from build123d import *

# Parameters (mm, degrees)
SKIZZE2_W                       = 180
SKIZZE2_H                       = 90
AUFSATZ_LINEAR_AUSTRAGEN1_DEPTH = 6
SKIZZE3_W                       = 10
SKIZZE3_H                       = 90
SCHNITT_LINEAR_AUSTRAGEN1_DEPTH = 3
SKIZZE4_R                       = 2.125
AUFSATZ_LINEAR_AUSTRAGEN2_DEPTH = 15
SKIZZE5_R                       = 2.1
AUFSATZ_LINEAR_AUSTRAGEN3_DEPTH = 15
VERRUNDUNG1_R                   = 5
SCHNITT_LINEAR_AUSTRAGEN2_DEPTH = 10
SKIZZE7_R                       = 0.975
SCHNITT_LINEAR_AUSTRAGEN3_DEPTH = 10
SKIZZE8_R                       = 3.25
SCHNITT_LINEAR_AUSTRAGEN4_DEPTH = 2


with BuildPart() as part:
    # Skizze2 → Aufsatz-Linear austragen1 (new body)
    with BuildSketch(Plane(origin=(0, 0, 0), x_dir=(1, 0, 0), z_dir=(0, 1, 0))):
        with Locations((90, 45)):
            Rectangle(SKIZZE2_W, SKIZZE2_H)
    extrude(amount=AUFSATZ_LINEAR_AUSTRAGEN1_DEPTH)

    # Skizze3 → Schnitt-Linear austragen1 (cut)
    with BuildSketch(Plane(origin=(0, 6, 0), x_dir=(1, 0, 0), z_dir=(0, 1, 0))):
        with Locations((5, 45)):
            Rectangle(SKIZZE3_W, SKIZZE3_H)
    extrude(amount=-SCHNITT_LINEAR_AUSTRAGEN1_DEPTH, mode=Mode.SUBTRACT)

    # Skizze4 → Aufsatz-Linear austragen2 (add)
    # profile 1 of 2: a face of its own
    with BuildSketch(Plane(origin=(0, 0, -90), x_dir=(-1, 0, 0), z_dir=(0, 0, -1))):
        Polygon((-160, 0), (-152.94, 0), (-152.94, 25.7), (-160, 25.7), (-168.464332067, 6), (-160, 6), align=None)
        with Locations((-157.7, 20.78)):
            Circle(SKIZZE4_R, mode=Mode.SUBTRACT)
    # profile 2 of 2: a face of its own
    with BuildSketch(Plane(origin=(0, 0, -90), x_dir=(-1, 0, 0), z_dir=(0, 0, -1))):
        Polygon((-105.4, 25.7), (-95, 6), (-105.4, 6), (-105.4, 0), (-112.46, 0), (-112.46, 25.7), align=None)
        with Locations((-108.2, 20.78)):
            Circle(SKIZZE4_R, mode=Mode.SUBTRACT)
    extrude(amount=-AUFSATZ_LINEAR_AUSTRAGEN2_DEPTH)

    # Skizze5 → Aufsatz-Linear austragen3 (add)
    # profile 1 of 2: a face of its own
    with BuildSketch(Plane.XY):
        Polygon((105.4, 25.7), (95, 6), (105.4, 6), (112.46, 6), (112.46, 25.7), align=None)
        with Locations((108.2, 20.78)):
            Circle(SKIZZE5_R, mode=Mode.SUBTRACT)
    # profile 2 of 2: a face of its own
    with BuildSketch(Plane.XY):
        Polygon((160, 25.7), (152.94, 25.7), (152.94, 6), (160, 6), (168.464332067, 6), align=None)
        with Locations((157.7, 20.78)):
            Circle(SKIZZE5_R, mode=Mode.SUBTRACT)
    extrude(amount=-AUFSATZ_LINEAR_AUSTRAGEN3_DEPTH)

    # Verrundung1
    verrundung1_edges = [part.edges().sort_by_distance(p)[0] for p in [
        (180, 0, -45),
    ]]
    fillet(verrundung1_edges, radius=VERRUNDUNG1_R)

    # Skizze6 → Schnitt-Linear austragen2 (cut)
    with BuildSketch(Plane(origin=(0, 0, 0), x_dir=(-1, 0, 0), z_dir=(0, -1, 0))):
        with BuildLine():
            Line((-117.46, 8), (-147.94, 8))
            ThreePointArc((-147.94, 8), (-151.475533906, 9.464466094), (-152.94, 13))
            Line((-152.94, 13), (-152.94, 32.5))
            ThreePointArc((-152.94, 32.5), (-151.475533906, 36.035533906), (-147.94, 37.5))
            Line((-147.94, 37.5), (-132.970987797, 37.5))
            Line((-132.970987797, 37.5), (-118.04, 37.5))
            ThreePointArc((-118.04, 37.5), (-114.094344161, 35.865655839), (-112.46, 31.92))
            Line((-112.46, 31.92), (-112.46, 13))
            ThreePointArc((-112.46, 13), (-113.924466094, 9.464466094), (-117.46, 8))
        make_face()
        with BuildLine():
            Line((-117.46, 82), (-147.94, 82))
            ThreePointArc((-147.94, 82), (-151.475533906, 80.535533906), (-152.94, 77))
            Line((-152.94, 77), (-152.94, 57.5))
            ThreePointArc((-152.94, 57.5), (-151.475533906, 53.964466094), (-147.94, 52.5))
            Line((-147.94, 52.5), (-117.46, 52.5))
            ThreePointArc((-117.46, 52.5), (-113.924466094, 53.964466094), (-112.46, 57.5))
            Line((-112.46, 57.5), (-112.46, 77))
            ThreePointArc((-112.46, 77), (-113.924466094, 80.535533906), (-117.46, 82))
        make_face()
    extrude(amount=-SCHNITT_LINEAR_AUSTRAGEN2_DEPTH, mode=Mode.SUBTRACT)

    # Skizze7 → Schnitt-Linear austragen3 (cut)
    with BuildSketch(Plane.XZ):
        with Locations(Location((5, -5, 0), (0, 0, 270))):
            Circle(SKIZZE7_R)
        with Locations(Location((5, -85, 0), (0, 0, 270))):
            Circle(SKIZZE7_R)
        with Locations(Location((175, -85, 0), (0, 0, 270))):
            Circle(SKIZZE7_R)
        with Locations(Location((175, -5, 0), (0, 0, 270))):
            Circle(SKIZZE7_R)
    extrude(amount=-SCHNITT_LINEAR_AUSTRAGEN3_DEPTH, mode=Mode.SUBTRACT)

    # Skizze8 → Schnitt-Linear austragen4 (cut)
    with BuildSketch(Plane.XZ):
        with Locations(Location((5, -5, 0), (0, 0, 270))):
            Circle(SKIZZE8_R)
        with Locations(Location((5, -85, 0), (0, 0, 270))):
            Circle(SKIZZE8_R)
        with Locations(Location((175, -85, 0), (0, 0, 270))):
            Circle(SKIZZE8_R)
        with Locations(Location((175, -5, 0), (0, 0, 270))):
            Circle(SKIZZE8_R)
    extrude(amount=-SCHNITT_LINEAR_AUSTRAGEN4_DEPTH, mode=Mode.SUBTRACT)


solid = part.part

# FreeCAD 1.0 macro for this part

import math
import FreeCAD as App
import Part
import Sketcher

V = App.Vector


def edges_at(feature, points):
    """Names of the edges that pass closest to the given points."""
    edges = feature.Shape.Edges
    near = lambda p: min(range(len(edges)), key=lambda i: edges[i].distToShape(Part.Vertex(*p))[0])
    return sorted({f"Edge{near(p) + 1}" for p in points})

doc = App.newDocument("Part")
params = doc.addObject("Spreadsheet::Sheet", "Params")
for row, (alias, value) in enumerate([
    ("sketch1_width", "180 mm"),
    ("sketch1_height", "90 mm"),
    ("pad1_length", "6 mm"),
    ("sketch2_width", "10 mm"),
    ("sketch2_height", "90 mm"),
    ("pocket1_length", "3 mm"),
    ("sketch3_diameter", "4.25 mm"),
    ("sketch3_height", "6 mm"),
    ("sketch3_width", "10.4 mm"),
    ("sketch3_height2", "25.7 mm"),
    ("sketch3_width2", "7.06 mm"),
    ("pad2_length", "15 mm"),
    ("sketch4_diameter", "4.2 mm"),
    ("sketch4_height", "19.7 mm"),
    ("sketch4_width", "17.46 mm"),
    ("sketch4_width2", "7.06 mm"),
    ("pad3_length", "15 mm"),
    ("fillet_radius", "5 mm"),
    ("sketch5_radius", "5 mm"),
    ("sketch5_radius2", "5.58 mm"),
    ("sketch5_width", "29.9 mm"),
    ("sketch5_height", "19.5 mm"),
    ("pocket2_length", "10 mm"),
    ("sketch6_diameter", "1.95 mm"),
    ("pocket3_length", "10 mm"),
    ("sketch7_diameter", "6.5 mm"),
    ("pocket4_length", "2 mm"),
], start=1):
    params.set(f"A{row}", alias)
    params.set(f"B{row}", "=" + value)
    params.setAlias(f"B{row}", alias)

body = doc.addObject("PartDesign::Body", "Body")

sketch1 = doc.addObject("Sketcher::SketchObject", "Sketch")
body.addObject(sketch1)
sketch1.AttachmentSupport = (doc.XZ_Plane, [""])
sketch1.MapMode = "FlatFace"
sketch1.addGeometry(Part.LineSegment(V(0, -90, 0), V(0, 0, 0)), False)
sketch1.addGeometry(Part.LineSegment(V(0, 0, 0), V(180, 0, 0)), False)
sketch1.addGeometry(Part.LineSegment(V(180, 0, 0), V(180, -90, 0)), False)
sketch1.addGeometry(Part.LineSegment(V(180, -90, 0), V(0, -90, 0)), False)
sketch1.addConstraint(Sketcher.Constraint("Coincident", 0, 2, 1, 1))
sketch1.addConstraint(Sketcher.Constraint("Coincident", 1, 2, 2, 1))
sketch1.addConstraint(Sketcher.Constraint("Coincident", 2, 2, 3, 1))
sketch1.addConstraint(Sketcher.Constraint("Coincident", 3, 2, 0, 1))
sketch1.addConstraint(Sketcher.Constraint("Vertical", 0))
sketch1.addConstraint(Sketcher.Constraint("Horizontal", 1))
sketch1.addConstraint(Sketcher.Constraint("Vertical", 2))
sketch1.addConstraint(Sketcher.Constraint("Horizontal", 3))
sketch1.addConstraint(Sketcher.Constraint("Coincident", 0, 2, -1, 1))
sketch1.addConstraint(Sketcher.Constraint("DistanceX", 1, 1, 1, 2, 180.0))
sketch1.addConstraint(Sketcher.Constraint("DistanceY", 0, 1, 0, 2, 90.0))
sketch1.setExpression("Constraints[9]", "Params.sketch1_width")
sketch1.setExpression("Constraints[10]", "Params.sketch1_height")
pad1 = doc.addObject("PartDesign::Pad", "Pad")
body.addObject(pad1)
pad1.Profile = sketch1
pad1.setExpression("Length", "Params.pad1_length")
pad1.Reversed = True

sketch2 = doc.addObject("Sketcher::SketchObject", "Sketch001")
body.addObject(sketch2)
sketch2.AttachmentSupport = (doc.XZ_Plane, [""])
sketch2.MapMode = "FlatFace"
sketch2.AttachmentOffset = App.Placement(V(0, 0, -6), App.Rotation())
sketch2.addGeometry(Part.LineSegment(V(0, -90, 0), V(0, 0, 0)), False)
sketch2.addGeometry(Part.LineSegment(V(0, 0, 0), V(10, 0, 0)), False)
sketch2.addGeometry(Part.LineSegment(V(10, 0, 0), V(10, -90, 0)), False)
sketch2.addGeometry(Part.LineSegment(V(10, -90, 0), V(0, -90, 0)), False)
sketch2.addConstraint(Sketcher.Constraint("Coincident", 0, 2, 1, 1))
sketch2.addConstraint(Sketcher.Constraint("Coincident", 1, 2, 2, 1))
sketch2.addConstraint(Sketcher.Constraint("Coincident", 2, 2, 3, 1))
sketch2.addConstraint(Sketcher.Constraint("Coincident", 3, 2, 0, 1))
sketch2.addConstraint(Sketcher.Constraint("Vertical", 0))
sketch2.addConstraint(Sketcher.Constraint("Horizontal", 1))
sketch2.addConstraint(Sketcher.Constraint("Vertical", 2))
sketch2.addConstraint(Sketcher.Constraint("Horizontal", 3))
sketch2.addConstraint(Sketcher.Constraint("Coincident", 0, 2, -1, 1))
sketch2.addConstraint(Sketcher.Constraint("DistanceX", 1, 1, 1, 2, 10.0))
sketch2.addConstraint(Sketcher.Constraint("DistanceY", 0, 1, 0, 2, 90.0))
sketch2.setExpression("Constraints[9]", "Params.sketch2_width")
sketch2.setExpression("Constraints[10]", "Params.sketch2_height")
pocket1 = doc.addObject("PartDesign::Pocket", "Pocket")
body.addObject(pocket1)
pocket1.Profile = sketch2
pocket1.setExpression("Length", "Params.pocket1_length")
pocket1.Reversed = True

sketch3 = doc.addObject("Sketcher::SketchObject", "Sketch002")
body.addObject(sketch3)
sketch3.AttachmentSupport = (doc.XY_Plane, [""])
sketch3.MapMode = "FlatFace"
sketch3.AttachmentOffset = App.Placement(V(0, 0, -90), App.Rotation())
sketch3.addGeometry(Part.LineSegment(V(160, 0, 0), V(152.94, 0, 0)), False)
sketch3.addGeometry(Part.LineSegment(V(152.94, 0, 0), V(152.94, 25.7, 0)), False)
sketch3.addGeometry(Part.LineSegment(V(152.94, 25.7, 0), V(160, 25.7, 0)), False)
sketch3.addGeometry(Part.LineSegment(V(160, 25.7, 0), V(168.464332, 6, 0)), False)
sketch3.addGeometry(Part.LineSegment(V(168.464332, 6, 0), V(160, 6, 0)), False)
sketch3.addGeometry(Part.LineSegment(V(160, 6, 0), V(160, 0, 0)), False)
sketch3.addGeometry(Part.Circle(V(157.7, 20.78, 0), V(0, 0, 1), 2.125), False)
sketch3.addGeometry(Part.LineSegment(V(95, 6, 0), V(105.4, 25.7, 0)), False)
sketch3.addGeometry(Part.LineSegment(V(105.4, 25.7, 0), V(112.46, 25.7, 0)), False)
sketch3.addGeometry(Part.LineSegment(V(112.46, 25.7, 0), V(112.46, 0, 0)), False)
sketch3.addGeometry(Part.LineSegment(V(112.46, 0, 0), V(105.4, 0, 0)), False)
sketch3.addGeometry(Part.LineSegment(V(105.4, 0, 0), V(105.4, 6, 0)), False)
sketch3.addGeometry(Part.LineSegment(V(105.4, 6, 0), V(95, 6, 0)), False)
sketch3.addGeometry(Part.Circle(V(108.2, 20.78, 0), V(0, 0, 1), 2.125), False)
sketch3.addConstraint(Sketcher.Constraint("Coincident", 0, 2, 1, 1))
sketch3.addConstraint(Sketcher.Constraint("Coincident", 1, 2, 2, 1))
sketch3.addConstraint(Sketcher.Constraint("Coincident", 2, 2, 3, 1))
sketch3.addConstraint(Sketcher.Constraint("Coincident", 3, 2, 4, 1))
sketch3.addConstraint(Sketcher.Constraint("Coincident", 4, 2, 5, 1))
sketch3.addConstraint(Sketcher.Constraint("Coincident", 5, 2, 0, 1))
sketch3.addConstraint(Sketcher.Constraint("Coincident", 7, 2, 8, 1))
sketch3.addConstraint(Sketcher.Constraint("Coincident", 8, 2, 9, 1))
sketch3.addConstraint(Sketcher.Constraint("Coincident", 9, 2, 10, 1))
sketch3.addConstraint(Sketcher.Constraint("Coincident", 10, 2, 11, 1))
sketch3.addConstraint(Sketcher.Constraint("Coincident", 11, 2, 12, 1))
sketch3.addConstraint(Sketcher.Constraint("Coincident", 12, 2, 7, 1))
sketch3.addConstraint(Sketcher.Constraint("Horizontal", 0))
sketch3.addConstraint(Sketcher.Constraint("Vertical", 1))
sketch3.addConstraint(Sketcher.Constraint("Horizontal", 2))
sketch3.addConstraint(Sketcher.Constraint("Horizontal", 4))
sketch3.addConstraint(Sketcher.Constraint("Vertical", 5))
sketch3.addConstraint(Sketcher.Constraint("Horizontal", 8))
sketch3.addConstraint(Sketcher.Constraint("Vertical", 9))
sketch3.addConstraint(Sketcher.Constraint("Horizontal", 10))
sketch3.addConstraint(Sketcher.Constraint("Vertical", 11))
sketch3.addConstraint(Sketcher.Constraint("Horizontal", 12))
sketch3.addConstraint(Sketcher.Constraint("Equal", 6, 13))
sketch3.addConstraint(Sketcher.Constraint("PointOnObject", 0, 2, -1))
sketch3.addConstraint(Sketcher.Constraint("PointOnObject", 9, 2, -1))
sketch3.addConstraint(Sketcher.Constraint("Horizontal", 6, 3, 13, 3))
sketch3.addConstraint(Sketcher.Constraint("Horizontal", 2, 2, 7, 2))
sketch3.addConstraint(Sketcher.Constraint("Horizontal", 4, 2, 11, 2))
sketch3.addConstraint(Sketcher.Constraint("Vertical", 2, 2, 4, 2))
sketch3.addConstraint(Sketcher.Constraint("Vertical", 7, 2, 10, 2))
sketch3.addConstraint(Sketcher.Constraint("Equal", 2, 8))
sketch3.addConstraint(Sketcher.Constraint("Diameter", 6, 4.25))
sketch3.addConstraint(Sketcher.Constraint("DistanceY", 5, 2, 5, 1, 6.0))
sketch3.addConstraint(Sketcher.Constraint("DistanceX", 12, 2, 12, 1, 10.4))
sketch3.addConstraint(Sketcher.Constraint("DistanceY", 1, 1, 1, 2, 25.7))
sketch3.addConstraint(Sketcher.Constraint("DistanceX", -1, 1, 2, 2, 160.0))
sketch3.addConstraint(Sketcher.Constraint("DistanceX", -1, 1, 12, 2, 95.0))
sketch3.addConstraint(Sketcher.Constraint("DistanceX", 0, 2, 0, 1, 7.06))
sketch3.addConstraint(Sketcher.Constraint("DistanceX", -1, 1, 6, 3, 157.7))
sketch3.addConstraint(Sketcher.Constraint("DistanceX", -1, 1, 13, 3, 108.2))
sketch3.addConstraint(Sketcher.Constraint("DistanceY", -1, 1, 6, 3, 20.78))
sketch3.addConstraint(Sketcher.Constraint("Distance", 3, 21.44143))
sketch3.setExpression("Constraints[31]", "Params.sketch3_diameter")
sketch3.setExpression("Constraints[32]", "Params.sketch3_height")
sketch3.setExpression("Constraints[33]", "Params.sketch3_width")
sketch3.setExpression("Constraints[34]", "Params.sketch3_height2")
sketch3.setExpression("Constraints[37]", "Params.sketch3_width2")
pad2 = doc.addObject("PartDesign::Pad", "Pad001")
body.addObject(pad2)
pad2.Profile = sketch3
pad2.setExpression("Length", "Params.pad2_length")

sketch4 = doc.addObject("Sketcher::SketchObject", "Sketch003")
body.addObject(sketch4)
sketch4.AttachmentSupport = (doc.XY_Plane, [""])
sketch4.MapMode = "FlatFace"
sketch4.addGeometry(Part.LineSegment(V(105.4, 25.7, 0), V(95, 6, 0)), False)
sketch4.addGeometry(Part.LineSegment(V(95, 6, 0), V(112.46, 6, 0)), False)
sketch4.addGeometry(Part.LineSegment(V(112.46, 6, 0), V(112.46, 25.7, 0)), False)
sketch4.addGeometry(Part.LineSegment(V(112.46, 25.7, 0), V(105.4, 25.7, 0)), False)
sketch4.addGeometry(Part.Circle(V(108.2, 20.78, 0), V(0, 0, 1), 2.1), False)
sketch4.addGeometry(Part.LineSegment(V(160, 25.7, 0), V(152.94, 25.7, 0)), False)
sketch4.addGeometry(Part.LineSegment(V(152.94, 25.7, 0), V(152.94, 6, 0)), False)
sketch4.addGeometry(Part.LineSegment(V(152.94, 6, 0), V(168.464332, 6, 0)), False)
sketch4.addGeometry(Part.LineSegment(V(168.464332, 6, 0), V(160, 25.7, 0)), False)
sketch4.addGeometry(Part.Circle(V(157.7, 20.78, 0), V(0, 0, 1), 2.1), False)
sketch4.addConstraint(Sketcher.Constraint("Coincident", 0, 2, 1, 1))
sketch4.addConstraint(Sketcher.Constraint("Coincident", 1, 2, 2, 1))
sketch4.addConstraint(Sketcher.Constraint("Coincident", 2, 2, 3, 1))
sketch4.addConstraint(Sketcher.Constraint("Coincident", 3, 2, 0, 1))
sketch4.addConstraint(Sketcher.Constraint("Coincident", 5, 2, 6, 1))
sketch4.addConstraint(Sketcher.Constraint("Coincident", 6, 2, 7, 1))
sketch4.addConstraint(Sketcher.Constraint("Coincident", 7, 2, 8, 1))
sketch4.addConstraint(Sketcher.Constraint("Coincident", 8, 2, 5, 1))
sketch4.addConstraint(Sketcher.Constraint("Horizontal", 1))
sketch4.addConstraint(Sketcher.Constraint("Vertical", 2))
sketch4.addConstraint(Sketcher.Constraint("Horizontal", 3))
sketch4.addConstraint(Sketcher.Constraint("Horizontal", 5))
sketch4.addConstraint(Sketcher.Constraint("Vertical", 6))
sketch4.addConstraint(Sketcher.Constraint("Horizontal", 7))
sketch4.addConstraint(Sketcher.Constraint("Equal", 4, 9))
sketch4.addConstraint(Sketcher.Constraint("Horizontal", 4, 3, 9, 3))
sketch4.addConstraint(Sketcher.Constraint("Horizontal", 3, 2, 5, 2))
sketch4.addConstraint(Sketcher.Constraint("Horizontal", 1, 2, 6, 2))
sketch4.addConstraint(Sketcher.Constraint("Equal", 3, 5))
sketch4.addConstraint(Sketcher.Constraint("Diameter", 4, 4.2))
sketch4.addConstraint(Sketcher.Constraint("DistanceY", 2, 1, 2, 2, 19.7))
sketch4.addConstraint(Sketcher.Constraint("DistanceX", -1, 1, 0, 2, 95.0))
sketch4.addConstraint(Sketcher.Constraint("DistanceY", -1, 1, 0, 2, 6.0))
sketch4.addConstraint(Sketcher.Constraint("DistanceX", -1, 1, 8, 2, 160.0))
sketch4.addConstraint(Sketcher.Constraint("DistanceX", 1, 1, 1, 2, 17.46))
sketch4.addConstraint(Sketcher.Constraint("DistanceX", 3, 2, 3, 1, 7.06))
sketch4.addConstraint(Sketcher.Constraint("DistanceX", -1, 1, 4, 3, 108.2))
sketch4.addConstraint(Sketcher.Constraint("DistanceX", -1, 1, 9, 3, 157.7))
sketch4.addConstraint(Sketcher.Constraint("DistanceY", -1, 1, 4, 3, 20.78))
sketch4.addConstraint(Sketcher.Constraint("Distance", 8, 21.44143))
sketch4.setExpression("Constraints[19]", "Params.sketch4_diameter")
sketch4.setExpression("Constraints[20]", "Params.sketch4_height")
sketch4.setExpression("Constraints[24]", "Params.sketch4_width")
sketch4.setExpression("Constraints[25]", "Params.sketch4_width2")
pad3 = doc.addObject("PartDesign::Pad", "Pad002")
body.addObject(pad3)
pad3.Profile = sketch4
pad3.setExpression("Length", "Params.pad3_length")
pad3.Reversed = True
doc.recompute()

fillet = doc.addObject("PartDesign::Fillet", "Fillet")
body.addObject(fillet)
fillet.Base = (pad3, edges_at(pad3, [(180, 0, -45)]))
fillet.setExpression("Radius", "Params.fillet_radius")

sketch5 = doc.addObject("Sketcher::SketchObject", "Sketch004")
body.addObject(sketch5)
sketch5.AttachmentSupport = (doc.XZ_Plane, [""])
sketch5.MapMode = "FlatFace"
sketch5.addGeometry(Part.LineSegment(V(147.94, -8, 0), V(117.46, -8, 0)), False)
sketch5.addGeometry(Part.ArcOfCircle(Part.Circle(V(117.46, -13, 0), V(0, 0, 1), 5), math.radians(90), math.radians(180)), False)
sketch5.addGeometry(Part.LineSegment(V(112.46, -13, 0), V(112.46, -31.92, 0)), False)
sketch5.addGeometry(Part.ArcOfCircle(Part.Circle(V(118.04, -31.92, 0), V(0, 0, 1), 5.58), math.radians(180), math.radians(270)), False)
sketch5.addGeometry(Part.LineSegment(V(118.04, -37.5, 0), V(147.94, -37.5, 0)), False)
sketch5.addGeometry(Part.ArcOfCircle(Part.Circle(V(147.94, -32.5, 0), V(0, 0, 1), 5), math.radians(-90), math.radians(0)), False)
sketch5.addGeometry(Part.LineSegment(V(152.94, -32.5, 0), V(152.94, -13, 0)), False)
sketch5.addGeometry(Part.ArcOfCircle(Part.Circle(V(147.94, -13, 0), V(0, 0, 1), 5), math.radians(0), math.radians(90)), False)
sketch5.addGeometry(Part.LineSegment(V(117.46, -82, 0), V(147.94, -82, 0)), False)
sketch5.addGeometry(Part.ArcOfCircle(Part.Circle(V(147.94, -77, 0), V(0, 0, 1), 5), math.radians(-90), math.radians(0)), False)
sketch5.addGeometry(Part.LineSegment(V(152.94, -77, 0), V(152.94, -57.5, 0)), False)
sketch5.addGeometry(Part.ArcOfCircle(Part.Circle(V(147.94, -57.5, 0), V(0, 0, 1), 5), math.radians(0), math.radians(90)), False)
sketch5.addGeometry(Part.LineSegment(V(147.94, -52.5, 0), V(117.46, -52.5, 0)), False)
sketch5.addGeometry(Part.ArcOfCircle(Part.Circle(V(117.46, -57.5, 0), V(0, 0, 1), 5), math.radians(90), math.radians(180)), False)
sketch5.addGeometry(Part.LineSegment(V(112.46, -57.5, 0), V(112.46, -77, 0)), False)
sketch5.addGeometry(Part.ArcOfCircle(Part.Circle(V(117.46, -77, 0), V(0, 0, 1), 5), math.radians(180), math.radians(270)), False)
sketch5.addConstraint(Sketcher.Constraint("Tangent", 0, 2, 1, 1))
sketch5.addConstraint(Sketcher.Constraint("Tangent", 1, 2, 2, 1))
sketch5.addConstraint(Sketcher.Constraint("Tangent", 2, 2, 3, 1))
sketch5.addConstraint(Sketcher.Constraint("Tangent", 3, 2, 4, 1))
sketch5.addConstraint(Sketcher.Constraint("Tangent", 4, 2, 5, 1))
sketch5.addConstraint(Sketcher.Constraint("Tangent", 5, 2, 6, 1))
sketch5.addConstraint(Sketcher.Constraint("Tangent", 6, 2, 7, 1))
sketch5.addConstraint(Sketcher.Constraint("Tangent", 7, 2, 0, 1))
sketch5.addConstraint(Sketcher.Constraint("Tangent", 8, 2, 9, 1))
sketch5.addConstraint(Sketcher.Constraint("Tangent", 9, 2, 10, 1))
sketch5.addConstraint(Sketcher.Constraint("Tangent", 10, 2, 11, 1))
sketch5.addConstraint(Sketcher.Constraint("Tangent", 11, 2, 12, 1))
sketch5.addConstraint(Sketcher.Constraint("Tangent", 12, 2, 13, 1))
sketch5.addConstraint(Sketcher.Constraint("Tangent", 13, 2, 14, 1))
sketch5.addConstraint(Sketcher.Constraint("Tangent", 14, 2, 15, 1))
sketch5.addConstraint(Sketcher.Constraint("Tangent", 15, 2, 8, 1))
sketch5.addConstraint(Sketcher.Constraint("Horizontal", 0))
sketch5.addConstraint(Sketcher.Constraint("Vertical", 2))
sketch5.addConstraint(Sketcher.Constraint("Horizontal", 4))
sketch5.addConstraint(Sketcher.Constraint("Vertical", 6))
sketch5.addConstraint(Sketcher.Constraint("Horizontal", 8))
sketch5.addConstraint(Sketcher.Constraint("Vertical", 10))
sketch5.addConstraint(Sketcher.Constraint("Horizontal", 12))
sketch5.addConstraint(Sketcher.Constraint("Vertical", 14))
sketch5.addConstraint(Sketcher.Constraint("Equal", 1, 5))
sketch5.addConstraint(Sketcher.Constraint("Equal", 5, 7))
sketch5.addConstraint(Sketcher.Constraint("Equal", 7, 9))
sketch5.addConstraint(Sketcher.Constraint("Equal", 9, 11))
sketch5.addConstraint(Sketcher.Constraint("Equal", 11, 13))
sketch5.addConstraint(Sketcher.Constraint("Equal", 13, 15))
sketch5.addConstraint(Sketcher.Constraint("Vertical", 7, 3, 9, 3))
sketch5.addConstraint(Sketcher.Constraint("Vertical", 1, 3, 13, 3))
sketch5.addConstraint(Sketcher.Constraint("Equal", 6, 10))
sketch5.addConstraint(Sketcher.Constraint("Radius", 1, 5.0))
sketch5.addConstraint(Sketcher.Constraint("Radius", 3, 5.58))
sketch5.addConstraint(Sketcher.Constraint("DistanceX", 4, 1, 4, 2, 29.9))
sketch5.addConstraint(Sketcher.Constraint("DistanceY", 6, 1, 6, 2, 19.5))
sketch5.addConstraint(Sketcher.Constraint("DistanceY", 1, 3, -1, 1, 13.0))
sketch5.addConstraint(Sketcher.Constraint("DistanceY", 9, 3, -1, 1, 77.0))
sketch5.addConstraint(Sketcher.Constraint("DistanceX", -1, 1, 1, 3, 117.46))
sketch5.setExpression("Constraints[33]", "Params.sketch5_radius")
sketch5.setExpression("Constraints[34]", "Params.sketch5_radius2")
sketch5.setExpression("Constraints[35]", "Params.sketch5_width")
sketch5.setExpression("Constraints[36]", "Params.sketch5_height")
pocket2 = doc.addObject("PartDesign::Pocket", "Pocket001")
body.addObject(pocket2)
pocket2.Profile = sketch5
pocket2.setExpression("Length", "Params.pocket2_length")

sketch6 = doc.addObject("Sketcher::SketchObject", "Sketch005")
body.addObject(sketch6)
sketch6.AttachmentSupport = (doc.XZ_Plane, [""])
sketch6.MapMode = "FlatFace"
sketch6.addGeometry(Part.Circle(V(5, -5, 0), V(0, 0, 1), 0.975), False)
sketch6.addGeometry(Part.Circle(V(5, -85, 0), V(0, 0, 1), 0.975), False)
sketch6.addGeometry(Part.Circle(V(175, -85, 0), V(0, 0, 1), 0.975), False)
sketch6.addGeometry(Part.Circle(V(175, -5, 0), V(0, 0, 1), 0.975), False)
sketch6.addConstraint(Sketcher.Constraint("Equal", 0, 1))
sketch6.addConstraint(Sketcher.Constraint("Equal", 1, 2))
sketch6.addConstraint(Sketcher.Constraint("Equal", 2, 3))
sketch6.addConstraint(Sketcher.Constraint("Horizontal", 1, 3, 2, 3))
sketch6.addConstraint(Sketcher.Constraint("Horizontal", 0, 3, 3, 3))
sketch6.addConstraint(Sketcher.Constraint("Vertical", 0, 3, 1, 3))
sketch6.addConstraint(Sketcher.Constraint("Vertical", 2, 3, 3, 3))
sketch6.addConstraint(Sketcher.Constraint("Diameter", 0, 1.95))
sketch6.addConstraint(Sketcher.Constraint("DistanceX", -1, 1, 0, 3, 5.0))
sketch6.addConstraint(Sketcher.Constraint("DistanceY", 0, 3, -1, 1, 5.0))
sketch6.addConstraint(Sketcher.Constraint("DistanceY", 1, 3, -1, 1, 85.0))
sketch6.addConstraint(Sketcher.Constraint("DistanceX", -1, 1, 2, 3, 175.0))
sketch6.setExpression("Constraints[7]", "Params.sketch6_diameter")
pocket3 = doc.addObject("PartDesign::Pocket", "Pocket002")
body.addObject(pocket3)
pocket3.Profile = sketch6
pocket3.setExpression("Length", "Params.pocket3_length")

sketch7 = doc.addObject("Sketcher::SketchObject", "Sketch006")
body.addObject(sketch7)
sketch7.AttachmentSupport = (doc.XZ_Plane, [""])
sketch7.MapMode = "FlatFace"
sketch7.addGeometry(Part.Circle(V(5, -5, 0), V(0, 0, 1), 3.25), False)
sketch7.addGeometry(Part.Circle(V(5, -85, 0), V(0, 0, 1), 3.25), False)
sketch7.addGeometry(Part.Circle(V(175, -85, 0), V(0, 0, 1), 3.25), False)
sketch7.addGeometry(Part.Circle(V(175, -5, 0), V(0, 0, 1), 3.25), False)
sketch7.addConstraint(Sketcher.Constraint("Equal", 0, 1))
sketch7.addConstraint(Sketcher.Constraint("Equal", 1, 2))
sketch7.addConstraint(Sketcher.Constraint("Equal", 2, 3))
sketch7.addConstraint(Sketcher.Constraint("Horizontal", 1, 3, 2, 3))
sketch7.addConstraint(Sketcher.Constraint("Horizontal", 0, 3, 3, 3))
sketch7.addConstraint(Sketcher.Constraint("Vertical", 0, 3, 1, 3))
sketch7.addConstraint(Sketcher.Constraint("Vertical", 2, 3, 3, 3))
sketch7.addConstraint(Sketcher.Constraint("Diameter", 0, 6.5))
sketch7.addConstraint(Sketcher.Constraint("DistanceX", -1, 1, 0, 3, 5.0))
sketch7.addConstraint(Sketcher.Constraint("DistanceY", 0, 3, -1, 1, 5.0))
sketch7.addConstraint(Sketcher.Constraint("DistanceY", 1, 3, -1, 1, 85.0))
sketch7.addConstraint(Sketcher.Constraint("DistanceX", -1, 1, 2, 3, 175.0))
sketch7.setExpression("Constraints[7]", "Params.sketch7_diameter")
pocket4 = doc.addObject("PartDesign::Pocket", "Pocket003")
body.addObject(pocket4)
pocket4.Profile = sketch7
pocket4.setExpression("Length", "Params.pocket4_length")

doc.recompute()
